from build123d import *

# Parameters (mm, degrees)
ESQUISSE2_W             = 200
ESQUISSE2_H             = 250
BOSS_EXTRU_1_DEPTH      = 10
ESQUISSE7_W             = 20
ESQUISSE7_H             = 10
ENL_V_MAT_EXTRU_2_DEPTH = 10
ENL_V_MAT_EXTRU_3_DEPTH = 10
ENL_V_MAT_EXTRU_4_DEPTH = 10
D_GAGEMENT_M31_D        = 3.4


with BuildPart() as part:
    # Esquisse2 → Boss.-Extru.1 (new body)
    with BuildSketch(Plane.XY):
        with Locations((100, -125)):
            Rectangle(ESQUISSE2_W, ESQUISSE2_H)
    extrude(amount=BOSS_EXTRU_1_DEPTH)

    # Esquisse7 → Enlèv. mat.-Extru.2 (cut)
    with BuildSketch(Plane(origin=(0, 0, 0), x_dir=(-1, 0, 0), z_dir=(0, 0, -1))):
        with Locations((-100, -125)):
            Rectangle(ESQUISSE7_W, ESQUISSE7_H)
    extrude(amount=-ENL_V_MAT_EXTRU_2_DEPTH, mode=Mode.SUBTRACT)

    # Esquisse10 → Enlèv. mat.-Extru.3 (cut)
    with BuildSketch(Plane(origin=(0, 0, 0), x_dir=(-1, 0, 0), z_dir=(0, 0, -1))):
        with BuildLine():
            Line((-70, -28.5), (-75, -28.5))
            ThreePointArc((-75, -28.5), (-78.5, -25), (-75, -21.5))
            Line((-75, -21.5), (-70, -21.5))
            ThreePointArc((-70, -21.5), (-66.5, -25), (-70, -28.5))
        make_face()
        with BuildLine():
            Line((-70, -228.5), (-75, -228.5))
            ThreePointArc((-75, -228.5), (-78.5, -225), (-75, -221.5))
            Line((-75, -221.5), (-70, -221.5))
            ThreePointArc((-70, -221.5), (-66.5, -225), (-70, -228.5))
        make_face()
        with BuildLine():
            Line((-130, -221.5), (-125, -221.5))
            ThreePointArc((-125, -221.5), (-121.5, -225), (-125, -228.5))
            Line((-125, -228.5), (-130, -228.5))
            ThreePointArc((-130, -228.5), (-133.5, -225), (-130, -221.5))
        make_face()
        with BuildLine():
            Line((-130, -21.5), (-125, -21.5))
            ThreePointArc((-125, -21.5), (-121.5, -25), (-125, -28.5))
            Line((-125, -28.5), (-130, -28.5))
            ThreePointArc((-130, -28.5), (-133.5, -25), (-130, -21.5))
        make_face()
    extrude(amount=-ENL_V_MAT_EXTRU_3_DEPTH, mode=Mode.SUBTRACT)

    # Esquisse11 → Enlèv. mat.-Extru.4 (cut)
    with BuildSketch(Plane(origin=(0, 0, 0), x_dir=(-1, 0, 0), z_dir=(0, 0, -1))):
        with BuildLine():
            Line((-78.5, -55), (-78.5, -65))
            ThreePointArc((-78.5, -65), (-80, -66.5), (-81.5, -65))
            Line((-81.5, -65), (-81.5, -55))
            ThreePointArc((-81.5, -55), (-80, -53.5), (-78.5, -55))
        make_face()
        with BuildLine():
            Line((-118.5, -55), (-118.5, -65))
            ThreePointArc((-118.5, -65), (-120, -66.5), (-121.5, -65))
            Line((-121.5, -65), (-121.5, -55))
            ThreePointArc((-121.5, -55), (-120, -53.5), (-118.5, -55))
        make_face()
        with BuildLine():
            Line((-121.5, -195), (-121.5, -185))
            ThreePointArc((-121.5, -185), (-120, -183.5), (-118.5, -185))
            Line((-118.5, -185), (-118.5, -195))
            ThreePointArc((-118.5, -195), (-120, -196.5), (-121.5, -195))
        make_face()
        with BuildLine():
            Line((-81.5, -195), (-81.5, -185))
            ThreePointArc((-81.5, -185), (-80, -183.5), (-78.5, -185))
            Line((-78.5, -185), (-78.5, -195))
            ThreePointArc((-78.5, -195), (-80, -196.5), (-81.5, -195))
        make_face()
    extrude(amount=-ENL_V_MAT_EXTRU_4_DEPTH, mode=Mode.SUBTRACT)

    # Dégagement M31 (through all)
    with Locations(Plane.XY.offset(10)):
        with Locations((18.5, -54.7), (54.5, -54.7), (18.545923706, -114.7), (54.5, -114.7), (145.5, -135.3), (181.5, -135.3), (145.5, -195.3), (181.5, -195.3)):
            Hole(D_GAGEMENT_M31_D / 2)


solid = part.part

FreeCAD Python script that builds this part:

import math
import FreeCAD as App
import Part
import Sketcher
from FreeCAD import Vector
Q = App.Units.Quantity

doc = App.newDocument("Part")
body = doc.addObject("PartDesign::Body", "Body")

# Sketch on XY plane
sketch1 = body.newObject("Sketcher::SketchObject", "Sketch")
sketch1.AttachmentSupport = (doc.getObject("XY_Plane"), [""])
sketch1.MapMode = "FlatFace"
sketch1.addGeometry(Part.LineSegment(Vector(0, 0, 0), Vector(0, -250, 0)), False)
sketch1.addGeometry(Part.LineSegment(Vector(0, -250, 0), Vector(200, -250, 0)), False)
sketch1.addGeometry(Part.LineSegment(Vector(200, -250, 0), Vector(200, 0, 0)), False)
sketch1.addGeometry(Part.LineSegment(Vector(200, 0, 0), Vector(0, 0, 0)), False)
sketch1.addConstraint(Sketcher.Constraint("Coincident", 0, 2, 1, 1))
sketch1.addConstraint(Sketcher.Constraint("Coincident", 1, 2, 2, 1))
sketch1.addConstraint(Sketcher.Constraint("Coincident", 2, 2, 3, 1))
sketch1.addConstraint(Sketcher.Constraint("Coincident", 3, 2, 0, 1))
sketch1.addConstraint(Sketcher.Constraint("Vertical", 0))
sketch1.addConstraint(Sketcher.Constraint("Horizontal", 1))
sketch1.addConstraint(Sketcher.Constraint("Vertical", 2))
sketch1.addConstraint(Sketcher.Constraint("Horizontal", 3))
sketch1.addConstraint(Sketcher.Constraint("Coincident", 3, 2, -1, 1))
sketch1.addConstraint(Sketcher.Constraint("DistanceX", 1, 1, 1, 2, Q("200 mm")))
sketch1.addConstraint(Sketcher.Constraint("DistanceY", 0, 2, 0, 1, Q("250 mm")))
pad1 = body.newObject("PartDesign::Pad", "Pad")
pad1.Profile = sketch1
pad1.Length = 10

# Sketch on XY plane
sketch2 = body.newObject("Sketcher::SketchObject", "Sketch001")
sketch2.AttachmentSupport = (doc.getObject("XY_Plane"), [""])
sketch2.MapMode = "FlatFace"
sketch2.addGeometry(Part.LineSegment(Vector(110, -120, 0), Vector(110, -130, 0)), False)
sketch2.addGeometry(Part.LineSegment(Vector(110, -130, 0), Vector(90, -130, 0)), False)
sketch2.addGeometry(Part.LineSegment(Vector(90, -130, 0), Vector(90, -120, 0)), False)
sketch2.addGeometry(Part.LineSegment(Vector(90, -120, 0), Vector(110, -120, 0)), False)
sketch2.addConstraint(Sketcher.Constraint("Coincident", 0, 2, 1, 1))
sketch2.addConstraint(Sketcher.Constraint("Coincident", 1, 2, 2, 1))
sketch2.addConstraint(Sketcher.Constraint("Coincident", 2, 2, 3, 1))
sketch2.addConstraint(Sketcher.Constraint("Coincident", 3, 2, 0, 1))
sketch2.addConstraint(Sketcher.Constraint("Vertical", 0))
sketch2.addConstraint(Sketcher.Constraint("Horizontal", 1))
sketch2.addConstraint(Sketcher.Constraint("Vertical", 2))
sketch2.addConstraint(Sketcher.Constraint("Horizontal", 3))
sketch2.addConstraint(Sketcher.Constraint("DistanceX", 1, 2, 1, 1, Q("20 mm")))
sketch2.addConstraint(Sketcher.Constraint("DistanceY", 0, 2, 0, 1, Q("10 mm")))
sketch2.addConstraint(Sketcher.Constraint("DistanceX", -1, 1, 0, 2, Q("110 mm")))
sketch2.addConstraint(Sketcher.Constraint("DistanceY", 0, 2, -1, 1, Q("130 mm")))
pocket1 = body.newObject("PartDesign::Pocket", "Pocket")
pocket1.Profile = sketch2
pocket1.Length = 10
pocket1.Reversed = True

# Sketch on XY plane
sketch3 = body.newObject("Sketcher::SketchObject", "Sketch002")
sketch3.AttachmentSupport = (doc.getObject("XY_Plane"), [""])
sketch3.MapMode = "FlatFace"
sketch3.addGeometry(Part.LineSegment(Vector(75, -28.5, 0), Vector(70, -28.5, 0)), False)
sketch3.addGeometry(Part.ArcOfCircle(Part.Circle(Vector(70, -25, 0), Vector(0, 0, 1), 3.5), math.radians(90), math.radians(270)), False)
sketch3.addGeometry(Part.LineSegment(Vector(70, -21.5, 0), Vector(75, -21.5, 0)), False)
sketch3.addGeometry(Part.ArcOfCircle(Part.Circle(Vector(75, -25, 0), Vector(0, 0, 1), 3.5), math.radians(-90), math.radians(90)), False)
sketch3.addGeometry(Part.LineSegment(Vector(75, -228.5, 0), Vector(70, -228.5, 0)), False)
sketch3.addGeometry(Part.ArcOfCircle(Part.Circle(Vector(70, -225, 0), Vector(0, 0, 1), 3.5), math.radians(90), math.radians(270)), False)
sketch3.addGeometry(Part.LineSegment(Vector(70, -221.5, 0), Vector(75, -221.5, 0)), False)
sketch3.addGeometry(Part.ArcOfCircle(Part.Circle(Vector(75, -225, 0), Vector(0, 0, 1), 3.5), math.radians(-90), math.radians(90)), False)
sketch3.addGeometry(Part.LineSegment(Vector(125, -221.5, 0), Vector(130, -221.5, 0)), False)
sketch3.addGeometry(Part.ArcOfCircle(Part.Circle(Vector(130, -225, 0), Vector(0, 0, 1), 3.5), math.radians(-90), math.radians(90)), False)
sketch3.addGeometry(Part.LineSegment(Vector(130, -228.5, 0), Vector(125, -228.5, 0)), False)
sketch3.addGeometry(Part.ArcOfCircle(Part.Circle(Vector(125, -225, 0), Vector(0, 0, 1), 3.5), math.radians(90), math.radians(270)), False)
sketch3.addGeometry(Part.LineSegment(Vector(125, -21.5, 0), Vector(130, -21.5, 0)), False)
sketch3.addGeometry(Part.ArcOfCircle(Part.Circle(Vector(130, -25, 0), Vector(0, 0, 1), 3.5), math.radians(-90), math.radians(90)), False)
sketch3.addGeometry(Part.LineSegment(Vector(130, -28.5, 0), Vector(125, -28.5, 0)), False)
sketch3.addGeometry(Part.ArcOfCircle(Part.Circle(Vector(125, -25, 0), Vector(0, 0, 1), 3.5), math.radians(90), math.radians(270)), False)
sketch3.addConstraint(Sketcher.Constraint("Tangent", 0, 2, 1, 2))
sketch3.addConstraint(Sketcher.Constraint("Tangent", 1, 1, 2, 1))
sketch3.addConstraint(Sketcher.Constraint("Tangent", 2, 2, 3, 2))
sketch3.addConstraint(Sketcher.Constraint("Tangent", 3, 1, 0, 1))
sketch3.addConstraint(Sketcher.Constraint("Tangent", 4, 2, 5, 2))
sketch3.addConstraint(Sketcher.Constraint("Tangent", 5, 1, 6, 1))
sketch3.addConstraint(Sketcher.Constraint("Tangent", 6, 2, 7, 2))
sketch3.addConstraint(Sketcher.Constraint("Tangent", 7, 1, 4, 1))
sketch3.addConstraint(Sketcher.Constraint("Tangent", 8, 2, 9, 2))
sketch3.addConstraint(Sketcher.Constraint("Tangent", 9, 1, 10, 1))
sketch3.addConstraint(Sketcher.Constraint("Tangent", 10, 2, 11, 2))
sketch3.addConstraint(Sketcher.Constraint("Tangent", 11, 1, 8, 1))
sketch3.addConstraint(Sketcher.Constraint("Tangent", 12, 2, 13, 2))
sketch3.addConstraint(Sketcher.Constraint("Tangent", 13, 1, 14, 1))
sketch3.addConstraint(Sketcher.Constraint("Tangent", 14, 2, 15, 2))
sketch3.addConstraint(Sketcher.Constraint("Tangent", 15, 1, 12, 1))
sketch3.addConstraint(Sketcher.Constraint("Horizontal", 0))
sketch3.addConstraint(Sketcher.Constraint("Horizontal", 2))
sketch3.addConstraint(Sketcher.Constraint("Horizontal", 4))
sketch3.addConstraint(Sketcher.Constraint("Horizontal", 6))
sketch3.addConstraint(Sketcher.Constraint("Horizontal", 8))
sketch3.addConstraint(Sketcher.Constraint("Horizontal", 10))
sketch3.addConstraint(Sketcher.Constraint("Horizontal", 12))
sketch3.addConstraint(Sketcher.Constraint("Horizontal", 14))
sketch3.addConstraint(Sketcher.Constraint("Equal", 3, 5))
sketch3.addConstraint(Sketcher.Constraint("Equal", 7, 9))
sketch3.addConstraint(Sketcher.Constraint("Equal", 11, 13))
sketch3.addConstraint(Sketcher.Constraint("Horizontal", 7, 3, 9, 3))
sketch3.addConstraint(Sketcher.Constraint("Horizontal", 3, 3, 13, 3))
sketch3.addConstraint(Sketcher.Constraint("Vertical", 1, 3, 5, 3))
sketch3.addConstraint(Sketcher.Constraint("Vertical", 3, 3, 7, 3))
sketch3.addConstraint(Sketcher.Constraint("Vertical", 9, 3, 13, 3))
sketch3.addConstraint(Sketcher.Constraint("Vertical", 11, 3, 15, 3))
sketch3.addConstraint(Sketcher.Constraint("Equal", 6, 8))
sketch3.addConstraint(Sketcher.Constraint("Radius", 1, Q("3.5 mm")))
sketch3.addConstraint(Sketcher.Constraint("DistanceX", 0, 2, 0, 1, Q("5 mm")))
sketch3.addConstraint(Sketcher.Constraint("DistanceX", -1, 1, 1, 3, Q("70 mm")))
sketch3.addConstraint(Sketcher.Constraint("DistanceY", 1, 3, -1, 1, Q("25 mm")))
sketch3.addConstraint(Sketcher.Constraint("DistanceY", 5, 3, -1, 1, Q("225 mm")))
sketch3.addConstraint(Sketcher.Constraint("DistanceX", -1, 1, 9, 3, Q("130 mm")))
pocket2 = body.newObject("PartDesign::Pocket", "Pocket001")
pocket2.Profile = sketch3
pocket2.Length = 10
pocket2.Reversed = True

# Sketch on XY plane
sketch4 = body.newObject("Sketcher::SketchObject", "Sketch003")
sketch4.AttachmentSupport = (doc.getObject("XY_Plane"), [""])
sketch4.MapMode = "FlatFace"
sketch4.addGeometry(Part.LineSegment(Vector(78.5, -65, 0), Vector(78.5, -55, 0)), False)
sketch4.addGeometry(Part.ArcOfCircle(Part.Circle(Vector(80, -55, 0), Vector(0, 0, 1), 1.5), math.radians(0), math.radians(180)), False)
sketch4.addGeometry(Part.LineSegment(Vector(81.5, -55, 0), Vector(81.5, -65, 0)), False)
sketch4.addGeometry(Part.ArcOfCircle(Part.Circle(Vector(80, -65, 0), Vector(0, 0, 1), 1.5), math.radians(180), math.radians(360)), False)
sketch4.addGeometry(Part.LineSegment(Vector(118.5, -65, 0), Vector(118.5, -55, 0)), False)
sketch4.addGeometry(Part.ArcOfCircle(Part.Circle(Vector(120, -55, 0), Vector(0, 0, 1), 1.5), math.radians(0), math.radians(180)), False)
sketch4.addGeometry(Part.LineSegment(Vector(121.5, -55, 0), Vector(121.5, -65, 0)), False)
sketch4.addGeometry(Part.ArcOfCircle(Part.Circle(Vector(120, -65, 0), Vector(0, 0, 1), 1.5), math.radians(180), math.radians(360)), False)
sketch4.addGeometry(Part.LineSegment(Vector(121.5, -185, 0), Vector(121.5, -195, 0)), False)
sketch4.addGeometry(Part.ArcOfCircle(Part.Circle(Vector(120, -195, 0), Vector(0, 0, 1), 1.5), math.radians(180), math.radians(360)), False)
sketch4.addGeometry(Part.LineSegment(Vector(118.5, -195, 0), Vector(118.5, -185, 0)), False)
sketch4.addGeometry(Part.ArcOfCircle(Part.Circle(Vector(120, -185, 0), Vector(0, 0, 1), 1.5), math.radians(0), math.radians(180)), False)
sketch4.addGeometry(Part.LineSegment(Vector(81.5, -185, 0), Vector(81.5, -195, 0)), False)
sketch4.addGeometry(Part.ArcOfCircle(Part.Circle(Vector(80, -195, 0), Vector(0, 0, 1), 1.5), math.radians(180), math.radians(360)), False)
sketch4.addGeometry(Part.LineSegment(Vector(78.5, -195, 0), Vector(78.5, -185, 0)), False)
sketch4.addGeometry(Part.ArcOfCircle(Part.Circle(Vector(80, -185, 0), Vector(0, 0, 1), 1.5), math.radians(0), math.radians(180)), False)
sketch4.addConstraint(Sketcher.Constraint("Tangent", 0, 2, 1, 2))
sketch4.addConstraint(Sketcher.Constraint("Tangent", 1, 1, 2, 1))
sketch4.addConstraint(Sketcher.Constraint("Tangent", 2, 2, 3, 2))
sketch4.addConstraint(Sketcher.Constraint("Tangent", 3, 1, 0, 1))
sketch4.addConstraint(Sketcher.Constraint("Tangent", 4, 2, 5, 2))
sketch4.addConstraint(Sketcher.Constraint("Tangent", 5, 1, 6, 1))
sketch4.addConstraint(Sketcher.Constraint("Tangent", 6, 2, 7, 2))
sketch4.addConstraint(Sketcher.Constraint("Tangent", 7, 1, 4, 1))
sketch4.addConstraint(Sketcher.Constraint("Tangent", 8, 2, 9, 2))
sketch4.addConstraint(Sketcher.Constraint("Tangent", 9, 1, 10, 1))
sketch4.addConstraint(Sketcher.Constraint("Tangent", 10, 2, 11, 2))
sketch4.addConstraint(Sketcher.Constraint("Tangent", 11, 1, 8, 1))
sketch4.addConstraint(Sketcher.Constraint("Tangent", 12, 2, 13, 2))
sketch4.addConstraint(Sketcher.Constraint("Tangent", 13, 1, 14, 1))
sketch4.addConstraint(Sketcher.Constraint("Tangent", 14, 2, 15, 2))
sketch4.addConstraint(Sketcher.Constraint("Tangent", 15, 1, 12, 1))
sketch4.addConstraint(Sketcher.Constraint("Vertical", 0))
sketch4.addConstraint(Sketcher.Constraint("Vertical", 2))
sketch4.addConstraint(Sketcher.Constraint("Vertical", 4))
sketch4.addConstraint(Sketcher.Constraint("Vertical", 6))
sketch4.addConstraint(Sketcher.Constraint("Vertical", 8))
sketch4.addConstraint(Sketcher.Constraint("Vertical", 10))
sketch4.addConstraint(Sketcher.Constraint("Vertical", 12))
sketch4.addConstraint(Sketcher.Constraint("Vertical", 14))
sketch4.addConstraint(Sketcher.Constraint("Equal", 3, 5))
sketch4.addConstraint(Sketcher.Constraint("Equal", 7, 9))
sketch4.addConstraint(Sketcher.Constraint("Equal", 11, 13))
sketch4.addConstraint(Sketcher.Constraint("Horizontal", 1, 3, 5, 3))
sketch4.addConstraint(Sketcher.Constraint("Horizontal", 3, 3, 7, 3))
sketch4.addConstraint(Sketcher.Constraint("Horizontal", 9, 3, 13, 3))
sketch4.addConstraint(Sketcher.Constraint("Horizontal", 11, 3, 15, 3))
sketch4.addConstraint(Sketcher.Constraint("Vertical", 7, 3, 9, 3))
sketch4.addConstraint(Sketcher.Constraint("Vertical", 3, 3, 13, 3))
sketch4.addConstraint(Sketcher.Constraint("Equal", 6, 8))
sketch4.addConstraint(Sketcher.Constraint("Radius", 1, Q("1.5 mm")))
sketch4.addConstraint(Sketcher.Constraint("DistanceY", 0, 1, 0, 2, Q("10 mm")))
sketch4.addConstraint(Sketcher.Constraint("DistanceX", -1, 1, 1, 3, Q("80 mm")))
sketch4.addConstraint(Sketcher.Constraint("DistanceY", 1, 3, -1, 1, Q("55 mm")))
sketch4.addConstraint(Sketcher.Constraint("DistanceX", -1, 1, 5, 3, Q("120 mm")))
sketch4.addConstraint(Sketcher.Constraint("DistanceY", 9, 3, -1, 1, Q("195 mm")))
pocket3 = body.newObject("PartDesign::Pocket", "Pocket002")
pocket3.Profile = sketch4
pocket3.Length = 10
pocket3.Reversed = True

# Sketch on XY plane
sketch5 = body.newObject("Sketcher::SketchObject", "Sketch004")
sketch5.AttachmentSupport = (doc.getObject("XY_Plane"), [""])
sketch5.MapMode = "FlatFace"
sketch5.AttachmentOffset = App.Placement(Vector(0, 0, 10), App.Rotation())
sketch5.addGeometry(Part.Circle(Vector(18.5, -54.7, 0), Vector(0, 0, 1), 1.7), False)
sketch5.addGeometry(Part.Circle(Vector(54.5, -54.7, 0), Vector(0, 0, 1), 1.7), False)
sketch5.addGeometry(Part.Circle(Vector(18.545924, -114.7, 0), Vector(0, 0, 1), 1.7), False)
sketch5.addGeometry(Part.Circle(Vector(54.5, -114.7, 0), Vector(0, 0, 1), 1.7), False)
sketch5.addGeometry(Part.Circle(Vector(145.5, -135.3, 0), Vector(0, 0, 1), 1.7), False)
sketch5.addGeometry(Part.Circle(Vector(181.5, -135.3, 0), Vector(0, 0, 1), 1.7), False)
sketch5.addGeometry(Part.Circle(Vector(145.5, -195.3, 0), Vector(0, 0, 1), 1.7), False)
sketch5.addGeometry(Part.Circle(Vector(181.5, -195.3, 0), Vector(0, 0, 1), 1.7), False)
sketch5.addConstraint(Sketcher.Constraint("Equal", 0, 1))
sketch5.addConstraint(Sketcher.Constraint("Equal", 1, 2))
sketch5.addConstraint(Sketcher.Constraint("Equal", 2, 3))
sketch5.addConstraint(Sketcher.Constraint("Equal", 3, 4))
sketch5.addConstraint(Sketcher.Constraint("Equal", 4, 5))
sketch5.addConstraint(Sketcher.Constraint("Equal", 5, 6))
sketch5.addConstraint(Sketcher.Constraint("Equal", 6, 7))
sketch5.addConstraint(Sketcher.Constraint("Horizontal", 0, 3, 1, 3))
sketch5.addConstraint(Sketcher.Constraint("Horizontal", 2, 3, 3, 3))
sketch5.addConstraint(Sketcher.Constraint("Horizontal", 4, 3, 5, 3))
sketch5.addConstraint(Sketcher.Constraint("Horizontal", 6, 3, 7, 3))
sketch5.addConstraint(Sketcher.Constraint("Vertical", 1, 3, 3, 3))
sketch5.addConstraint(Sketcher.Constraint("Vertical", 4, 3, 6, 3))
sketch5.addConstraint(Sketcher.Constraint("Vertical", 5, 3, 7, 3))
sketch5.addConstraint(Sketcher.Constraint("Diameter", 0, Q("3.4 mm")))
sketch5.addConstraint(Sketcher.Constraint("DistanceX", 0, 3, 1, 3, Q("36 mm")))
sketch5.addConstraint(Sketcher.Constraint("DistanceY", 2, 3, 0, 3, Q("60 mm")))
sketch5.addConstraint(Sketcher.Constraint("DistanceX", 3, 3, 4, 3, Q("91 mm")))
sketch5.addConstraint(Sketcher.Constraint("DistanceX", 4, 3, 5, 3, Q("36 mm")))
sketch5.addConstraint(Sketcher.Constraint("DistanceY", 6, 3, 4, 3, Q("60 mm")))
sketch5.addConstraint(Sketcher.Constraint("DistanceX", -1, 1, 0, 3, Q("18.5 mm")))
sketch5.addConstraint(Sketcher.Constraint("DistanceY", 0, 3, -1, 1, Q("54.7 mm")))
sketch5.addConstraint(Sketcher.Constraint("DistanceY", 4, 3, -1, 1, Q("135.3 mm")))
sketch5.addConstraint(Sketcher.Constraint("DistanceX", -1, 1, 2, 3, Q("18.545924 mm")))
doc.recompute()
hole = body.newObject("PartDesign::Hole", "Hole")
hole.Profile = sketch5
hole.ThreadType = "None"
hole.Diameter = 3.4
hole.DepthType = "ThroughAll"

doc.recompute()
